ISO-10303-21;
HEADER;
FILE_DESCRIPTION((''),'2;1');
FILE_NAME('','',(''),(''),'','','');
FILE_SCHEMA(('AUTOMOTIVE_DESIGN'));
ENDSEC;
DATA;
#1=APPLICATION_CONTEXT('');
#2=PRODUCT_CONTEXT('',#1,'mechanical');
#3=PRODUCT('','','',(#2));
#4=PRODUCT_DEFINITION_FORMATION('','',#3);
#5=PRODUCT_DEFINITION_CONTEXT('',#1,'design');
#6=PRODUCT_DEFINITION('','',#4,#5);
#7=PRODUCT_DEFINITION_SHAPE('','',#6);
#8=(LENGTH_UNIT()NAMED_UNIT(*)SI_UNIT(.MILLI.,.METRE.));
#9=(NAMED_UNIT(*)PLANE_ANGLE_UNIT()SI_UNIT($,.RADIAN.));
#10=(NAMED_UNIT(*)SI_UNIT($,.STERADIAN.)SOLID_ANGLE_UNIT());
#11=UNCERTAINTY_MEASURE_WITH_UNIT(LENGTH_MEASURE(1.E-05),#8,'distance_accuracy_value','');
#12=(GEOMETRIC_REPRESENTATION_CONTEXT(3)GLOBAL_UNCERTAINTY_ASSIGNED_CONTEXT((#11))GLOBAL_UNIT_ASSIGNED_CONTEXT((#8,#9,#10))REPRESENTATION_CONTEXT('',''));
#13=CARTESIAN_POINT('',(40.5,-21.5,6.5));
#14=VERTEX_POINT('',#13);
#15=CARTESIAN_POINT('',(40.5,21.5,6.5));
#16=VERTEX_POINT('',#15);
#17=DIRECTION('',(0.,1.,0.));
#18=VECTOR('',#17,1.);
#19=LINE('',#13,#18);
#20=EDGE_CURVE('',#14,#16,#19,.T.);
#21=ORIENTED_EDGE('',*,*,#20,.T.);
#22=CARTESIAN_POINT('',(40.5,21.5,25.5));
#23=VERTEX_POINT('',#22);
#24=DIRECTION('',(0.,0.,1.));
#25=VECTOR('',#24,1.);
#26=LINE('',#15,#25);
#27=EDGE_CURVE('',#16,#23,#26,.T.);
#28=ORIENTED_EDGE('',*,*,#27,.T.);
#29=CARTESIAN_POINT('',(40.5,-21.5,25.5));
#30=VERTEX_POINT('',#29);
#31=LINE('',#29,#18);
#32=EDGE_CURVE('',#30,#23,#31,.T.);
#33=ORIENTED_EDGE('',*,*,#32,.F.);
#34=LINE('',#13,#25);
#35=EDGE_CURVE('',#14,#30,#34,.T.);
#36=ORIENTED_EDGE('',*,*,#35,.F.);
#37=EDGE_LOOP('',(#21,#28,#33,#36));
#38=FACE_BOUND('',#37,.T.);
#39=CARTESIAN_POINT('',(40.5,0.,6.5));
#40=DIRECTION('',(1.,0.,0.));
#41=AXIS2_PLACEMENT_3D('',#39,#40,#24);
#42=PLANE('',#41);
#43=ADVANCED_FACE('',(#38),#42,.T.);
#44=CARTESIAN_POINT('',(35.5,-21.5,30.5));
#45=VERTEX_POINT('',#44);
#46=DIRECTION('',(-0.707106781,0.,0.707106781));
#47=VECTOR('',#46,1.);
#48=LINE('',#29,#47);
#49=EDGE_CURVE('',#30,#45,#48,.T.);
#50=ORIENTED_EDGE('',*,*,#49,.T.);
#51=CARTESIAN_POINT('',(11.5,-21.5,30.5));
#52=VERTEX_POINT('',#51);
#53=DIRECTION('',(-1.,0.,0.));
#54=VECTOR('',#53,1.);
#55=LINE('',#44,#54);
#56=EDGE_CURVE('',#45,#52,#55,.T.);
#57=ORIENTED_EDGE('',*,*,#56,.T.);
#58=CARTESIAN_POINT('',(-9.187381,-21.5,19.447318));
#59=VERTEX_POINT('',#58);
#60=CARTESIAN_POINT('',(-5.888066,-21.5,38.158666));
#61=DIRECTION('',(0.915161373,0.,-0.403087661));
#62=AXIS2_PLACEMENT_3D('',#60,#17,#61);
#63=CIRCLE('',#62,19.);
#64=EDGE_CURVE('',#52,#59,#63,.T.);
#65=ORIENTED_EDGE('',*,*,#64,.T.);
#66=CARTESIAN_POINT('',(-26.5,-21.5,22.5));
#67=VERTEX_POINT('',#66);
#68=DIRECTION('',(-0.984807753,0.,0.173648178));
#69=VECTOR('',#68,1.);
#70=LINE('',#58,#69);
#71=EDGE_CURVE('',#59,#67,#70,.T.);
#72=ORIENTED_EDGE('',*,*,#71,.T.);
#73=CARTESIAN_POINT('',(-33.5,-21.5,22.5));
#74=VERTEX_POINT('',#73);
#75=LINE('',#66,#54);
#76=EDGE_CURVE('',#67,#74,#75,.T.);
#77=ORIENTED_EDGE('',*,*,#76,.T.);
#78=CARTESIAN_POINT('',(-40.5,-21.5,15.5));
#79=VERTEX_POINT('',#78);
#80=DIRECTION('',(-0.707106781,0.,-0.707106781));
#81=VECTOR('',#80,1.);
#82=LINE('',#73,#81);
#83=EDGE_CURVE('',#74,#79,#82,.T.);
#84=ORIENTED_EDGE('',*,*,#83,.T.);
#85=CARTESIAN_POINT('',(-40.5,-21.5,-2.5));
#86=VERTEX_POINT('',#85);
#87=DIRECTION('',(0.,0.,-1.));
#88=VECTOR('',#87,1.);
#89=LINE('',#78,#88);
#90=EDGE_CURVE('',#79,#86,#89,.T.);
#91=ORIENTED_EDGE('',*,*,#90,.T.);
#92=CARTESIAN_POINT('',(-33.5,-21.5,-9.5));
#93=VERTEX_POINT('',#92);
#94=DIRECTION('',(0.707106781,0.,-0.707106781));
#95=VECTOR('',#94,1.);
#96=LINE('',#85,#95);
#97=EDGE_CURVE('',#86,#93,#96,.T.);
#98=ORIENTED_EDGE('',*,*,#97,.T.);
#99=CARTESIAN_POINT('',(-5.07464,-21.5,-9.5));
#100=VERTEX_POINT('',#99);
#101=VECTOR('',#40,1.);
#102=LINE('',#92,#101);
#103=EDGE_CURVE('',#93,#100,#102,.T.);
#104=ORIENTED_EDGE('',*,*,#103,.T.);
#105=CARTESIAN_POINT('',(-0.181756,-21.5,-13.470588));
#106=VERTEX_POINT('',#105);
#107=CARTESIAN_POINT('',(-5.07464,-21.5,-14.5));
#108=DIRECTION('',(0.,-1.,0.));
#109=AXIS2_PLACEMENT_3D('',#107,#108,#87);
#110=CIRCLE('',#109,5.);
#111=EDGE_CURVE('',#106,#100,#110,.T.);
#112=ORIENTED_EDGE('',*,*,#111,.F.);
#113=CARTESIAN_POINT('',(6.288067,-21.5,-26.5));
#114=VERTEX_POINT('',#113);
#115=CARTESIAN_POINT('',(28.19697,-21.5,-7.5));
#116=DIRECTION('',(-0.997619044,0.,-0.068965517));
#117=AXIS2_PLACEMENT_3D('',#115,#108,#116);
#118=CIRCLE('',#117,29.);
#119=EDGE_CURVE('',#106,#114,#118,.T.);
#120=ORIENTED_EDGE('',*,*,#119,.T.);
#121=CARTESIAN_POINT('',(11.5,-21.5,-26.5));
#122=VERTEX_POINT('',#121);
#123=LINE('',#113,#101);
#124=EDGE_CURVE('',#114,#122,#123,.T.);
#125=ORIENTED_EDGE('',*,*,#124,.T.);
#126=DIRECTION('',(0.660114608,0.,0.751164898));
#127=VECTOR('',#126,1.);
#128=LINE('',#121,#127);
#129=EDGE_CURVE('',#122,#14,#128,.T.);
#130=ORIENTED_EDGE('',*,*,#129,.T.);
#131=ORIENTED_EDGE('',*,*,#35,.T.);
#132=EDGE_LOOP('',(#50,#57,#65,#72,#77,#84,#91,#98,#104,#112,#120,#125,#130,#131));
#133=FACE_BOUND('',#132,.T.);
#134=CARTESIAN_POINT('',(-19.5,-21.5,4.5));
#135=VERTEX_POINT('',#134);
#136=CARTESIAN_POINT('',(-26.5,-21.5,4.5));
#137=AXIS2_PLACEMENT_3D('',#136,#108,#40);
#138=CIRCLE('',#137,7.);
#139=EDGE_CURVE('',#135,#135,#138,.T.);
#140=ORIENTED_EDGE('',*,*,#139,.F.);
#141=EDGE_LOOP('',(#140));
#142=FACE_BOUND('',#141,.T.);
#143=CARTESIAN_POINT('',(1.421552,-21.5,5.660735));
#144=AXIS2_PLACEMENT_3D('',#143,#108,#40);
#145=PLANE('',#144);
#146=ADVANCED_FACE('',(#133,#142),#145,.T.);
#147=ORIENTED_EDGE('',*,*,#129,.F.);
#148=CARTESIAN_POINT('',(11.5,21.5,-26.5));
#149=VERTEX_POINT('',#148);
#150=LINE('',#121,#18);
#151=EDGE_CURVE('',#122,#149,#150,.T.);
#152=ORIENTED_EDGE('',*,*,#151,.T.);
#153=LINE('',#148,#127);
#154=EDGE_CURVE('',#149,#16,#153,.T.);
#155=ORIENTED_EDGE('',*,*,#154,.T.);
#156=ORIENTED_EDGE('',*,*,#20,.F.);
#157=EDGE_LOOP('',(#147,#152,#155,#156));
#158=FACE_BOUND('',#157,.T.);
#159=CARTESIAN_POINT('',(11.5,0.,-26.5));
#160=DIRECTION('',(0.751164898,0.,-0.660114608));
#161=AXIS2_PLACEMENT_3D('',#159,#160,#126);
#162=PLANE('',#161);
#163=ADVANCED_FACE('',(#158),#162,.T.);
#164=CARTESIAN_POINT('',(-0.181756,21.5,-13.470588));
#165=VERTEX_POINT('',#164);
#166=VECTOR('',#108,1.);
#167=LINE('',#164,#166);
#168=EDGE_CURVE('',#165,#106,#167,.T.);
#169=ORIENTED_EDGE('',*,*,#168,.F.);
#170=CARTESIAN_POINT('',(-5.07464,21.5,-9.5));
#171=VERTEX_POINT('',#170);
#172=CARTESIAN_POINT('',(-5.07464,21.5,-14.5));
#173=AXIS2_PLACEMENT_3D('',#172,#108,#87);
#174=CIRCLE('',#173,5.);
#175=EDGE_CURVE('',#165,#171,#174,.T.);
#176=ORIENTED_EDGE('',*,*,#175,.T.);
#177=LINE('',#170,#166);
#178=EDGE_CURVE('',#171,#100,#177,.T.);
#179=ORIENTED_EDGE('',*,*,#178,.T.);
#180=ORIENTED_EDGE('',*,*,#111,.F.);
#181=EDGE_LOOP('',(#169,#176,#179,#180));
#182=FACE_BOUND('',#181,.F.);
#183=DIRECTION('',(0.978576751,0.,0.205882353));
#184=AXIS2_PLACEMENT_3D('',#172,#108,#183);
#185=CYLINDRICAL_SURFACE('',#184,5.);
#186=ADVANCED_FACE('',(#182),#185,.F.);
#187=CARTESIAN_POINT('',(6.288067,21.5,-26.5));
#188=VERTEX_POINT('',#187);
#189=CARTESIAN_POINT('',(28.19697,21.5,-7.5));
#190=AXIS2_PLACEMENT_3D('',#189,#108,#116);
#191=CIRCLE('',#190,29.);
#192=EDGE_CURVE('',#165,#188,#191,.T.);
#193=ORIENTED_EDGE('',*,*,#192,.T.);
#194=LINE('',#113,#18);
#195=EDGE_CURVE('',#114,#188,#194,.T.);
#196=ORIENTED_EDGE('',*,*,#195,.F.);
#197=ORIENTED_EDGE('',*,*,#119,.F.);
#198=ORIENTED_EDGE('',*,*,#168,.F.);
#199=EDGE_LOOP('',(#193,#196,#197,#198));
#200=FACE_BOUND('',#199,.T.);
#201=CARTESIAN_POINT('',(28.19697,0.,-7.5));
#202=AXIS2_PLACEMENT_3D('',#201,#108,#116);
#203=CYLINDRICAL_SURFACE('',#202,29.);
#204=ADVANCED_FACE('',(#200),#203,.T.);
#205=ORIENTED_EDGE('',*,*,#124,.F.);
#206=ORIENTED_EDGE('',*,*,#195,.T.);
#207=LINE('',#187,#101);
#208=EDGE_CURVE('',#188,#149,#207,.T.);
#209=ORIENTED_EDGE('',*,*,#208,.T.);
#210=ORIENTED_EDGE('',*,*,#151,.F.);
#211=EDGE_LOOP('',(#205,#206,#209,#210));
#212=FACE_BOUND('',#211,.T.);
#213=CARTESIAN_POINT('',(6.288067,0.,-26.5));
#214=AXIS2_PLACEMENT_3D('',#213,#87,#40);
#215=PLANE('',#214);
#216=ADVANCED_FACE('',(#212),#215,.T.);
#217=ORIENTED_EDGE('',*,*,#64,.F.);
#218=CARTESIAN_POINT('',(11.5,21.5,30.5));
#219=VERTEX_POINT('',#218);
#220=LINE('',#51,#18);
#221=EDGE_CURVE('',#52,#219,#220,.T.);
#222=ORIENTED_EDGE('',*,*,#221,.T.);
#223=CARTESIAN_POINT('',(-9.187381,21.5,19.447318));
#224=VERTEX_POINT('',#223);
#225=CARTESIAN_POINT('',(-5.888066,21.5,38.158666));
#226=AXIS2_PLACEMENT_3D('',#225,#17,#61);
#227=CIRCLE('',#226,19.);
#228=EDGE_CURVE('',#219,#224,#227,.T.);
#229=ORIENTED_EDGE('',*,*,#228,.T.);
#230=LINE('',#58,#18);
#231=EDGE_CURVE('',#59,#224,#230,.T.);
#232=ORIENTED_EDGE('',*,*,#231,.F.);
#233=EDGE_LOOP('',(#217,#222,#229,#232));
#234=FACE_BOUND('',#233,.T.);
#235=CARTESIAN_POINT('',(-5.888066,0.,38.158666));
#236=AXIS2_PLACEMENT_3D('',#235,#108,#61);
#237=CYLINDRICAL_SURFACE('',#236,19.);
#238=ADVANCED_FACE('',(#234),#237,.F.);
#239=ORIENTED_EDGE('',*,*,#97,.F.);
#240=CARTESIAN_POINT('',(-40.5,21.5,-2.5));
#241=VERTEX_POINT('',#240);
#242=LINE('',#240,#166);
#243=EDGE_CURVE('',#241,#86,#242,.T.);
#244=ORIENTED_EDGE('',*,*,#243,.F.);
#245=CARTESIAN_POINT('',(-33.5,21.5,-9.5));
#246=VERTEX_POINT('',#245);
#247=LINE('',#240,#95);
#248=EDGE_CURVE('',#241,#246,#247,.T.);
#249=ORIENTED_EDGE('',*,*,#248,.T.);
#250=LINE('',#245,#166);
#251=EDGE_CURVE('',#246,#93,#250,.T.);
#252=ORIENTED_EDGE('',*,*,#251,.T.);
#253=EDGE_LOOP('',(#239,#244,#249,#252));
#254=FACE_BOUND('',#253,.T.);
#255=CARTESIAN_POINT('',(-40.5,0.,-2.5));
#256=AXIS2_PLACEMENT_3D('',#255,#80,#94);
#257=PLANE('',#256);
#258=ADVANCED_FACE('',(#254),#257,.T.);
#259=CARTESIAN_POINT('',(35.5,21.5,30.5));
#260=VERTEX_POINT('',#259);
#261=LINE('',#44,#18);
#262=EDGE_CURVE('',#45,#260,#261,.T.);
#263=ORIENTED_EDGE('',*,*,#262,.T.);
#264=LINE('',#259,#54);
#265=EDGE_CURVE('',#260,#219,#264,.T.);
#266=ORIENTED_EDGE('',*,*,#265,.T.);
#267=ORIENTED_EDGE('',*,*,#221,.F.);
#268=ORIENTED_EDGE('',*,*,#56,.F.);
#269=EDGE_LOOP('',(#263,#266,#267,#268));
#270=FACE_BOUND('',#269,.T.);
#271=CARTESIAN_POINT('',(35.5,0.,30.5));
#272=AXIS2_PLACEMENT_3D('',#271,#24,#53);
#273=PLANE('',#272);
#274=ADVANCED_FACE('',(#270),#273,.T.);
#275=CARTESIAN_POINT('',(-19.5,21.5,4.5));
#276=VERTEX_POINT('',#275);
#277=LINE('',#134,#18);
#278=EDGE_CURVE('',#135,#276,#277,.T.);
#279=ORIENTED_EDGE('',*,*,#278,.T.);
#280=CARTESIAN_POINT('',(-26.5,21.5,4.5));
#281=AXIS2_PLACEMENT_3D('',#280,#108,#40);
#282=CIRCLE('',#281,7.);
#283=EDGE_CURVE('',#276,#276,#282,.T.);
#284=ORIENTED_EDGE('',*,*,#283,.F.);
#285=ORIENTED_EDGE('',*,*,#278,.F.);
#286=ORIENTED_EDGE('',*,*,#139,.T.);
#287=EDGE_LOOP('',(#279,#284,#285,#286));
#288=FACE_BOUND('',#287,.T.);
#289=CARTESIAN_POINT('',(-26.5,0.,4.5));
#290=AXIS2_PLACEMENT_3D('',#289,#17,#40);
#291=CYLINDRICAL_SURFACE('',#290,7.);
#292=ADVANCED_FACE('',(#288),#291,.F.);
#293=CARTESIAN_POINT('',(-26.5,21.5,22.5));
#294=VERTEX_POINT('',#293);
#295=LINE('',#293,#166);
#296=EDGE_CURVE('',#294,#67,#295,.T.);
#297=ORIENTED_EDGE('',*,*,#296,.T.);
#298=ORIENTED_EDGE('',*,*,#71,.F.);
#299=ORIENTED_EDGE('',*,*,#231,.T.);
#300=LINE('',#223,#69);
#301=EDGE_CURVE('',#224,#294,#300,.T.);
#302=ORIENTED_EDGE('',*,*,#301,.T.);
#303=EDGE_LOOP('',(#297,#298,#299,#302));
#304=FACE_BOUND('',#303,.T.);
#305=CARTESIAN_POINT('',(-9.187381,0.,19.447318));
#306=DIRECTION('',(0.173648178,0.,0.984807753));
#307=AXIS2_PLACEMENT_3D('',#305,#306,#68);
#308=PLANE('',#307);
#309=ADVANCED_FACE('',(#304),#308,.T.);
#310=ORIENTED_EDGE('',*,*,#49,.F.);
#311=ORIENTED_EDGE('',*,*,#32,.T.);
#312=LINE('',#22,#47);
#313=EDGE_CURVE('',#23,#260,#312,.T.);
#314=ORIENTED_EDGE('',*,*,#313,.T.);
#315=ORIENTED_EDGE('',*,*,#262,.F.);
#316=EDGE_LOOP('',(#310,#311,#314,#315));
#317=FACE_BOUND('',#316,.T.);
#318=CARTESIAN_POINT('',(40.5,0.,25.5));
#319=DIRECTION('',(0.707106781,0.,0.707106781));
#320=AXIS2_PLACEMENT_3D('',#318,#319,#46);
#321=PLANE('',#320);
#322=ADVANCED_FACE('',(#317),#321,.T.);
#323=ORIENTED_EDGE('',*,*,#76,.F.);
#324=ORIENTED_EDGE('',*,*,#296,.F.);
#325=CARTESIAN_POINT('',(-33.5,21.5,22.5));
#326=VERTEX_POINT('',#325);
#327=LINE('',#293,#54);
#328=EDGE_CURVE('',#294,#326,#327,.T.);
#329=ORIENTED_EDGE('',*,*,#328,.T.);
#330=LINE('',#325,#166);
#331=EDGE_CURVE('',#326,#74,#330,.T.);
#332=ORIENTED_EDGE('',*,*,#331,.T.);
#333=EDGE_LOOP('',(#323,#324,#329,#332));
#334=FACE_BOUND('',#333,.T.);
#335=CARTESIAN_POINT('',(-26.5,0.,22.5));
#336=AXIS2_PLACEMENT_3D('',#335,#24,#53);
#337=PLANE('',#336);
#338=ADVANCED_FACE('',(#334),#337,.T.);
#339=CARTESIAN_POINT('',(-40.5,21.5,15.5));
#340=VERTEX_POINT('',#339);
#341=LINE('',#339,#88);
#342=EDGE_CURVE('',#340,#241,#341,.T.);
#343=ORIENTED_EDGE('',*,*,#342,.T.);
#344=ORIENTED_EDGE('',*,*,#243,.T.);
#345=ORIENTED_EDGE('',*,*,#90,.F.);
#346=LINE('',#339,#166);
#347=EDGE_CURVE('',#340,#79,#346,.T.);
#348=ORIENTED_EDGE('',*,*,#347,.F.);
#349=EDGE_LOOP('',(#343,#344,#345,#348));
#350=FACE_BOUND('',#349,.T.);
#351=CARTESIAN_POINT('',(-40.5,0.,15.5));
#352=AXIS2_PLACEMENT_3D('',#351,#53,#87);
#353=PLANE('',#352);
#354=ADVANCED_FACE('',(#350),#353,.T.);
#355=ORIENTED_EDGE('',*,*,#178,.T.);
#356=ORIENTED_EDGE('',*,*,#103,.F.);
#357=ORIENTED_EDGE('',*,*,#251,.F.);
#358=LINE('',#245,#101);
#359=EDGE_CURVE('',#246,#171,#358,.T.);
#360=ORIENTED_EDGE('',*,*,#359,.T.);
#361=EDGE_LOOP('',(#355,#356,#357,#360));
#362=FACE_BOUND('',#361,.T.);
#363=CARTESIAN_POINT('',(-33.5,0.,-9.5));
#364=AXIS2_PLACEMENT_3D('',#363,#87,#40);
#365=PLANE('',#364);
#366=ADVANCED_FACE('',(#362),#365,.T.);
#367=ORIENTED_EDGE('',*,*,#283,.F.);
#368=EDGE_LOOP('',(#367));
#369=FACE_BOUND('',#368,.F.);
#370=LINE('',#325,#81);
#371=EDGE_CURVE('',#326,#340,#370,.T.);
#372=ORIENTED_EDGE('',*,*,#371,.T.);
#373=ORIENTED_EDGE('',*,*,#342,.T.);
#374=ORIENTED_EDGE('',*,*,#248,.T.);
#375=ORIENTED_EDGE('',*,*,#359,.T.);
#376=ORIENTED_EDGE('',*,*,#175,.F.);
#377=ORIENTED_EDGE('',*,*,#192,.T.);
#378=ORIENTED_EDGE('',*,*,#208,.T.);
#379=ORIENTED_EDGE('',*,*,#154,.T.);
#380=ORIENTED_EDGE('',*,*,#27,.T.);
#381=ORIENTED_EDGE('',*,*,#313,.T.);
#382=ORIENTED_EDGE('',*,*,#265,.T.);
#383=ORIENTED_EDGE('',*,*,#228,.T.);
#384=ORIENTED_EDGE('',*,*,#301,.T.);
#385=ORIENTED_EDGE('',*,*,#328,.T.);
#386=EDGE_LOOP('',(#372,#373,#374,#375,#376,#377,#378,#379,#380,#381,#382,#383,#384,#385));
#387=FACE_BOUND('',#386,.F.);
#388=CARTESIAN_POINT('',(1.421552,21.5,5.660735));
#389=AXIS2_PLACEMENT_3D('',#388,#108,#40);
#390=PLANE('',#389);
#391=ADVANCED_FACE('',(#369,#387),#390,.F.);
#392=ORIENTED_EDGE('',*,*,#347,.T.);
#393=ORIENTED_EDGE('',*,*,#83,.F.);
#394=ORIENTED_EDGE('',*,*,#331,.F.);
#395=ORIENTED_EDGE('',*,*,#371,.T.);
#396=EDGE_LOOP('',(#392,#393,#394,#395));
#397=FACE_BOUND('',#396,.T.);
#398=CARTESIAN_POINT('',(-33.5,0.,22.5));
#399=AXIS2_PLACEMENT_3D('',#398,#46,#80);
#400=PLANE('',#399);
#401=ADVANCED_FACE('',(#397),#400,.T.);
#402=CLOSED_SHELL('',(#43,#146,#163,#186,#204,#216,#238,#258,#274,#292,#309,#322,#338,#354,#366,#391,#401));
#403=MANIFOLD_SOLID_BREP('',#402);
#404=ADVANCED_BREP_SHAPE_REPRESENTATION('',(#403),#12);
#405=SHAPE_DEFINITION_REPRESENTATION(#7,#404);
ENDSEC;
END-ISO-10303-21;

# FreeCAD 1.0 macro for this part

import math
import FreeCAD as App
import Part
import Sketcher
Q = App.Units.Quantity


def edges_at(feature, points):
    """Names of the edges that pass closest to the given points."""
    edges = feature.Shape.Edges
    near = lambda p: min(range(len(edges)), key=lambda i: edges[i].distToShape(Part.Vertex(*p))[0])
    return sorted({f"Edge{near(p) + 1}" for p in points})

doc = App.newDocument("Part")
body = doc.addObject("PartDesign::Body", "Body")

# Sketch on XZ plane
sketch1 = doc.addObject("Sketcher::SketchObject", "Sketch")
body.addObject(sketch1)
sketch1.AttachmentSupport = (doc.XZ_Plane, [""])
sketch1.MapMode = "FlatFace"
sketch1.addGeometry(Part.LineSegment(App.Vector(-9, 19, 0), App.Vector(-26, 22, 0)), False)
sketch1.addGeometry(Part.LineSegment(App.Vector(-26, 22, 0), App.Vector(-34, 22, 0)), False)
sketch1.addGeometry(Part.LineSegment(App.Vector(-34, 22, 0), App.Vector(-40, 16, 0)), False)
sketch1.addGeometry(Part.LineSegment(App.Vector(-40, 16, 0), App.Vector(-40, -2, 0)), False)
sketch1.addGeometry(Part.LineSegment(App.Vector(-40, -2, 0), App.Vector(-34, -10, 0)), False)
sketch1.addGeometry(Part.LineSegment(App.Vector(-34, -10, 0), App.Vector(-1, -10, 0)), False)
sketch1.addGeometry(Part.ArcOfCircle(Part.Circle(App.Vector(28, -8, 0), App.Vector(0, 0, 1), 29), math.radians(-176), math.radians(-139)), False)
sketch1.addGeometry(Part.LineSegment(App.Vector(6, -26, 0), App.Vector(12, -26, 0)), False)
sketch1.addGeometry(Part.LineSegment(App.Vector(12, -26, 0), App.Vector(40, 6, 0)), False)
sketch1.addGeometry(Part.LineSegment(App.Vector(40, 6, 0), App.Vector(40, 26, 0)), False)
sketch1.addGeometry(Part.LineSegment(App.Vector(40, 26, 0), App.Vector(36, 30, 0)), False)
sketch1.addGeometry(Part.LineSegment(App.Vector(36, 30, 0), App.Vector(12, 30, 0)), False)
sketch1.addGeometry(Part.ArcOfCircle(Part.Circle(App.Vector(-6, 38, 0), App.Vector(0, 0, 1), 19), math.radians(-100), math.radians(-24)), False)
sketch1.addGeometry(Part.Circle(App.Vector(-26, 4, 0), App.Vector(0, 0, 1), 7), False)
sketch1.addConstraint(Sketcher.Constraint("Coincident", 0, 2, 1, 1))
sketch1.addConstraint(Sketcher.Constraint("Coincident", 1, 2, 2, 1))
sketch1.addConstraint(Sketcher.Constraint("Coincident", 2, 2, 3, 1))
sketch1.addConstraint(Sketcher.Constraint("Coincident", 3, 2, 4, 1))
sketch1.addConstraint(Sketcher.Constraint("Coincident", 4, 2, 5, 1))
sketch1.addConstraint(Sketcher.Constraint("Coincident", 5, 2, 6, 1))
sketch1.addConstraint(Sketcher.Constraint("Coincident", 6, 2, 7, 1))
sketch1.addConstraint(Sketcher.Constraint("Coincident", 7, 2, 8, 1))
sketch1.addConstraint(Sketcher.Constraint("Coincident", 8, 2, 9, 1))
sketch1.addConstraint(Sketcher.Constraint("Coincident", 9, 2, 10, 1))
sketch1.addConstraint(Sketcher.Constraint("Coincident", 10, 2, 11, 1))
sketch1.addConstraint(Sketcher.Constraint("Coincident", 11, 2, 12, 2))
sketch1.addConstraint(Sketcher.Constraint("Tangent", 12, 1, 0, 1))
sketch1.addConstraint(Sketcher.Constraint("Horizontal", 1))
sketch1.addConstraint(Sketcher.Constraint("Vertical", 3))
sketch1.addConstraint(Sketcher.Constraint("Horizontal", 5))
sketch1.addConstraint(Sketcher.Constraint("Horizontal", 7))
sketch1.addConstraint(Sketcher.Constraint("Vertical", 9))
sketch1.addConstraint(Sketcher.Constraint("Horizontal", 11))
sketch1.addConstraint(Sketcher.Constraint("Perpendicular", 2, 4))
sketch1.addConstraint(Sketcher.Constraint("Parallel", 4, 10))
sketch1.addConstraint(Sketcher.Constraint("Vertical", 13, 3, 0, 2))
sketch1.addConstraint(Sketcher.Constraint("Vertical", 1, 2, 4, 2))
sketch1.addConstraint(Sketcher.Constraint("Vertical", 7, 2, 11, 2))
sketch1.addConstraint(Sketcher.Constraint("Equal", 2, 4))
sketch1.addConstraint(Sketcher.Constraint("Diameter", 13, Q("14 mm")))
sketch1.addConstraint(Sketcher.Constraint("Radius", 6, Q("29 mm")))
sketch1.addConstraint(Sketcher.Constraint("Radius", 12, Q("19 mm")))
sketch1.addConstraint(Sketcher.Constraint("DistanceX", 1, 2, 1, 1, Q("7 mm")))
sketch1.addConstraint(Sketcher.Constraint("DistanceX", 11, 2, 11, 1, Q("24 mm")))
sketch1.addConstraint(Sketcher.Constraint("DistanceY", 3, 2, 3, 1, Q("18 mm")))
sketch1.addConstraint(Sketcher.Constraint("DistanceY", 9, 1, 9, 2, Q("19 mm")))
sketch1.addConstraint(Sketcher.Constraint("Angle", 0, Q("170 deg")))
sketch1.addConstraint(Sketcher.Constraint("DistanceY", 6, 3, 13, 3, Q("12 mm")))
sketch1.addConstraint(Sketcher.Constraint("DistanceY", 13, 3, 0, 2, Q("18 mm")))
sketch1.addConstraint(Sketcher.Constraint("DistanceX", 2, 2, 1, 2, Q("7 mm")))
sketch1.addConstraint(Sketcher.Constraint("DistanceY", 6, 2, 5, 2, Q("17 mm")))
sketch1.addConstraint(Sketcher.Constraint("DistanceX", 4, 2, 7, 2, Q("45 mm")))
sketch1.addConstraint(Sketcher.Constraint("DistanceY", 6, 3, 8, 2, Q("14 mm")))
sketch1.addConstraint(Sketcher.Constraint("DistanceX", 7, 2, 8, 2, Q("29 mm")))
sketch1.addConstraint(Sketcher.Constraint("DistanceY", 6, 3, -1, 1, Q("7.5 mm")))
sketch1.addConstraint(Sketcher.Constraint("DistanceX", 13, 3, -1, 1, Q("26.5 mm")))
sketch1.addConstraint(Sketcher.Constraint("DistanceX", 5, 1, 5, 2, Q("32.766017 mm")))
pad1 = doc.addObject("PartDesign::Pad", "Pad")
body.addObject(pad1)
pad1.Profile = sketch1
pad1.Length = 43
pad1.Midplane = True
doc.recompute()

fillet = doc.addObject("PartDesign::Fillet", "Fillet")
body.addObject(fillet)
fillet.Base = (pad1, edges_at(pad1, [(-0.734, 0, -9.5)]))
fillet.Radius = 5

doc.recompute()
